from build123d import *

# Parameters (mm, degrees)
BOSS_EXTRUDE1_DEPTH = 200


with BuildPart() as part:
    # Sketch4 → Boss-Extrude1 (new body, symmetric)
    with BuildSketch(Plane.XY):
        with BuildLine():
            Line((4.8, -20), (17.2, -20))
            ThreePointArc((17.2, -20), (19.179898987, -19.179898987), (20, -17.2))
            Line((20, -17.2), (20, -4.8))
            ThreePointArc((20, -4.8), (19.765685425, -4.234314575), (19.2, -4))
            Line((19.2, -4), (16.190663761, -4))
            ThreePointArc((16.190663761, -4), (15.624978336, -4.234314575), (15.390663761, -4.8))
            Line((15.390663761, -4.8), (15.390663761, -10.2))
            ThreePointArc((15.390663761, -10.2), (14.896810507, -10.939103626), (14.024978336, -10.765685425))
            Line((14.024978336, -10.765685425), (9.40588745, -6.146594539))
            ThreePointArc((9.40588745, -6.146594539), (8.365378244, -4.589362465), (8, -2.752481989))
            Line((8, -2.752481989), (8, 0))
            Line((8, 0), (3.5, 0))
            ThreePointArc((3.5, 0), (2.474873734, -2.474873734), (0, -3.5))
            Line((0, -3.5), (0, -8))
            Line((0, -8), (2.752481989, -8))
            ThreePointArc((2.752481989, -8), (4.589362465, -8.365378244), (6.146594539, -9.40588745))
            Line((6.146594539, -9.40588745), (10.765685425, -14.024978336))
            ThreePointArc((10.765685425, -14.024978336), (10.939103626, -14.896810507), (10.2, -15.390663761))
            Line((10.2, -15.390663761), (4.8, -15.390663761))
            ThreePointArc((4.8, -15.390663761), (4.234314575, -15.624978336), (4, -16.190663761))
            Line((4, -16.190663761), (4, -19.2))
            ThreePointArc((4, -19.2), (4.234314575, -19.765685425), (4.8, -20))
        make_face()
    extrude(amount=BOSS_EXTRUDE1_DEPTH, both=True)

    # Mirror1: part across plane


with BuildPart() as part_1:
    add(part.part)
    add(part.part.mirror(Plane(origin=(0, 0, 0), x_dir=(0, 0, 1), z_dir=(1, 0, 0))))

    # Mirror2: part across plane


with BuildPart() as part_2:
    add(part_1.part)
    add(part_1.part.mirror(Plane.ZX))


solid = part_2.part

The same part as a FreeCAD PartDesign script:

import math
import FreeCAD as App
import Part
import Sketcher

V = App.Vector
Q = App.Units.Quantity

doc = App.newDocument("Part")
body = doc.addObject("PartDesign::Body", "Body")

sketch1 = doc.addObject("Sketcher::SketchObject", "Sketch")
body.addObject(sketch1)
sketch1.AttachmentSupport = (doc.XY_Plane, [""])
sketch1.MapMode = "FlatFace"
sketch1.addGeometry([
    Part.LineSegment(V(4.8, -20, 0), V(17.2, -20, 0)),
    Part.ArcOfCircle(Part.Circle(V(17.2, -17.2, 0), V(0, 0, 1), 2.8), math.radians(-90), math.radians(0)),
    Part.LineSegment(V(20, -17.2, 0), V(20, -4.8, 0)),
    Part.ArcOfCircle(Part.Circle(V(19.2, -4.8, 0), V(0, 0, 1), 0.8), math.radians(0), math.radians(90)),
    Part.LineSegment(V(19.2, -4, 0), V(16.2, -4, 0)),
    Part.ArcOfCircle(Part.Circle(V(16.2, -4.8, 0), V(0, 0, 1), 0.8), math.radians(90), math.radians(180)),
    Part.LineSegment(V(15.4, -4.8, 0), V(15.4, -10.2, 0)),
    Part.ArcOfCircle(Part.Circle(V(14.6, -10.2, 0), V(0, 0, 1), 0.8), math.radians(-135), math.radians(0)),
    Part.LineSegment(V(14, -10.8, 0), V(9.4, -6.1, 0)),
    Part.ArcOfCircle(Part.Circle(V(12.8, -2.8, 0), V(0, 0, 1), 4.8), math.radians(180), math.radians(225)),
    Part.LineSegment(V(8, -2.8, 0), V(8, 0, 0)),
    Part.LineSegment(V(8, 0, 0), V(3.5, 0, 0)),
    Part.ArcOfCircle(Part.Circle(V(0, 0, 0), V(0, 0, 1), 3.5), math.radians(-90), math.radians(0)),
    Part.LineSegment(V(0, -3.5, 0), V(0, -8, 0)),
    Part.LineSegment(V(0, -8, 0), V(2.8, -8, 0)),
    Part.ArcOfCircle(Part.Circle(V(2.8, -12.8, 0), V(0, 0, 1), 4.8), math.radians(45), math.radians(90)),
    Part.LineSegment(V(6.1, -9.4, 0), V(10.8, -14, 0)),
    Part.ArcOfCircle(Part.Circle(V(10.2, -14.6, 0), V(0, 0, 1), 0.8), math.radians(-90), math.radians(45)),
    Part.LineSegment(V(10.2, -15.4, 0), V(4.8, -15.4, 0)),
    Part.ArcOfCircle(Part.Circle(V(4.8, -16.2, 0), V(0, 0, 1), 0.8), math.radians(90), math.radians(180)),
    Part.LineSegment(V(4, -16.2, 0), V(4, -19.2, 0)),
    Part.ArcOfCircle(Part.Circle(V(4.8, -19.2, 0), V(0, 0, 1), 0.8), math.radians(180), math.radians(270)),
], False)
sketch1.addConstraint([
    Sketcher.Constraint("Tangent", 0, 2, 1, 1),
    Sketcher.Constraint("Tangent", 1, 2, 2, 1),
    Sketcher.Constraint("Tangent", 2, 2, 3, 1),
    Sketcher.Constraint("Tangent", 3, 2, 4, 1),
    Sketcher.Constraint("Tangent", 4, 2, 5, 1),
    Sketcher.Constraint("Tangent", 5, 2, 6, 1),
    Sketcher.Constraint("Tangent", 6, 2, 7, 2),
    Sketcher.Constraint("Tangent", 7, 1, 8, 1),
    Sketcher.Constraint("Tangent", 8, 2, 9, 2),
    Sketcher.Constraint("Tangent", 9, 1, 10, 1),
    Sketcher.Constraint("Coincident", 10, 2, 11, 1),
    Sketcher.Constraint("Coincident", 11, 2, 12, 2),
    Sketcher.Constraint("Coincident", 12, 1, 13, 1),
    Sketcher.Constraint("Coincident", 13, 2, 14, 1),
    Sketcher.Constraint("Tangent", 14, 2, 15, 2),
    Sketcher.Constraint("Tangent", 15, 1, 16, 1),
    Sketcher.Constraint("Tangent", 16, 2, 17, 2),
    Sketcher.Constraint("Tangent", 17, 1, 18, 1),
    Sketcher.Constraint("Tangent", 18, 2, 19, 1),
    Sketcher.Constraint("Tangent", 19, 2, 20, 1),
    Sketcher.Constraint("Tangent", 20, 2, 21, 1),
    Sketcher.Constraint("Tangent", 21, 2, 0, 1),
    Sketcher.Constraint("Horizontal", 0),
    Sketcher.Constraint("Vertical", 2),
    Sketcher.Constraint("Horizontal", 4),
    Sketcher.Constraint("Vertical", 6),
    Sketcher.Constraint("Vertical", 10),
    Sketcher.Constraint("Horizontal", 11),
    Sketcher.Constraint("Vertical", 13),
    Sketcher.Constraint("Horizontal", 14),
    Sketcher.Constraint("Horizontal", 18),
    Sketcher.Constraint("Vertical", 20),
    Sketcher.Constraint("Coincident", 12, 3, -1, 1),
    Sketcher.Constraint("Equal", 3, 5),
    Sketcher.Constraint("Equal", 5, 7),
    Sketcher.Constraint("Equal", 9, 15),
    Sketcher.Constraint("Equal", 7, 17),
    Sketcher.Constraint("Equal", 17, 19),
    Sketcher.Constraint("Equal", 19, 21),
    Sketcher.Constraint("PointOnObject", 10, 2, -1),
    Sketcher.Constraint("PointOnObject", 12, 1, -2),
    Sketcher.Constraint("Parallel", 8, 16),
    Sketcher.Constraint("Equal", 0, 2),
    Sketcher.Constraint("Equal", 18, 6),
    Sketcher.Constraint("Equal", 14, 10),
    Sketcher.Constraint("Equal", 11, 13),
    Sketcher.Constraint("Equal", 4, 20),
    Sketcher.Constraint("Equal", 8, 16),
    Sketcher.Constraint("Radius", 1, Q("2.8 mm")),
    Sketcher.Constraint("Radius", 3, Q("0.8 mm")),
    Sketcher.Constraint("Radius", 9, Q("4.8 mm")),
    Sketcher.Constraint("Radius", 12, Q("3.5 mm")),
    Sketcher.Constraint("DistanceX", 0, 1, 0, 2, Q("12.4 mm")),
    Sketcher.Constraint("DistanceX", 11, 2, 11, 1, Q("4.5 mm")),
    Sketcher.Constraint("DistanceX", 18, 2, 18, 1, Q("5.4 mm")),
    Sketcher.Constraint("DistanceY", 0, 2, -1, 1, Q("20 mm")),
    Sketcher.Constraint("DistanceX", 14, 1, 14, 2, Q("2.752482 mm")),
])
pad1 = doc.addObject("PartDesign::Pad", "Pad")
body.addObject(pad1)
pad1.Profile = sketch1
pad1.Length = 400
pad1.Midplane = True
body2 = doc.addObject("PartDesign::Body", "Body001")
doc.recompute()

body2.BaseFeature = body
doc.recompute()

mirroring = doc.addObject("Part::Mirroring", "Mirroring")
mirroring.Source = body
mirroring.Base = V(0, 0, 0)
mirroring.Normal = V(1, 0, 0)
body3 = doc.addObject("PartDesign::Body", "Body002")
body3.BaseFeature = mirroring
boolean = doc.addObject("PartDesign::Boolean", "Boolean")
body2.addObject(boolean)
boolean.Type = "Fuse"
boolean.addObjects([body3])
doc.recompute()
body4 = doc.addObject("PartDesign::Body", "Body003")
doc.recompute()

body4.BaseFeature = body2
doc.recompute()

mirroring2 = doc.addObject("Part::Mirroring", "Mirroring001")
mirroring2.Source = body2
mirroring2.Base = V(0, 0, 0)
mirroring2.Normal = V(0, 1, 0)
body5 = doc.addObject("PartDesign::Body", "Body004")
body5.BaseFeature = mirroring2
boolean2 = doc.addObject("PartDesign::Boolean", "Boolean001")
body4.addObject(boolean2)
boolean2.Type = "Fuse"
boolean2.addObjects([body5])
doc.recompute()
mirroring.Visibility = False
mirroring2.Visibility = False

doc.recompute()
